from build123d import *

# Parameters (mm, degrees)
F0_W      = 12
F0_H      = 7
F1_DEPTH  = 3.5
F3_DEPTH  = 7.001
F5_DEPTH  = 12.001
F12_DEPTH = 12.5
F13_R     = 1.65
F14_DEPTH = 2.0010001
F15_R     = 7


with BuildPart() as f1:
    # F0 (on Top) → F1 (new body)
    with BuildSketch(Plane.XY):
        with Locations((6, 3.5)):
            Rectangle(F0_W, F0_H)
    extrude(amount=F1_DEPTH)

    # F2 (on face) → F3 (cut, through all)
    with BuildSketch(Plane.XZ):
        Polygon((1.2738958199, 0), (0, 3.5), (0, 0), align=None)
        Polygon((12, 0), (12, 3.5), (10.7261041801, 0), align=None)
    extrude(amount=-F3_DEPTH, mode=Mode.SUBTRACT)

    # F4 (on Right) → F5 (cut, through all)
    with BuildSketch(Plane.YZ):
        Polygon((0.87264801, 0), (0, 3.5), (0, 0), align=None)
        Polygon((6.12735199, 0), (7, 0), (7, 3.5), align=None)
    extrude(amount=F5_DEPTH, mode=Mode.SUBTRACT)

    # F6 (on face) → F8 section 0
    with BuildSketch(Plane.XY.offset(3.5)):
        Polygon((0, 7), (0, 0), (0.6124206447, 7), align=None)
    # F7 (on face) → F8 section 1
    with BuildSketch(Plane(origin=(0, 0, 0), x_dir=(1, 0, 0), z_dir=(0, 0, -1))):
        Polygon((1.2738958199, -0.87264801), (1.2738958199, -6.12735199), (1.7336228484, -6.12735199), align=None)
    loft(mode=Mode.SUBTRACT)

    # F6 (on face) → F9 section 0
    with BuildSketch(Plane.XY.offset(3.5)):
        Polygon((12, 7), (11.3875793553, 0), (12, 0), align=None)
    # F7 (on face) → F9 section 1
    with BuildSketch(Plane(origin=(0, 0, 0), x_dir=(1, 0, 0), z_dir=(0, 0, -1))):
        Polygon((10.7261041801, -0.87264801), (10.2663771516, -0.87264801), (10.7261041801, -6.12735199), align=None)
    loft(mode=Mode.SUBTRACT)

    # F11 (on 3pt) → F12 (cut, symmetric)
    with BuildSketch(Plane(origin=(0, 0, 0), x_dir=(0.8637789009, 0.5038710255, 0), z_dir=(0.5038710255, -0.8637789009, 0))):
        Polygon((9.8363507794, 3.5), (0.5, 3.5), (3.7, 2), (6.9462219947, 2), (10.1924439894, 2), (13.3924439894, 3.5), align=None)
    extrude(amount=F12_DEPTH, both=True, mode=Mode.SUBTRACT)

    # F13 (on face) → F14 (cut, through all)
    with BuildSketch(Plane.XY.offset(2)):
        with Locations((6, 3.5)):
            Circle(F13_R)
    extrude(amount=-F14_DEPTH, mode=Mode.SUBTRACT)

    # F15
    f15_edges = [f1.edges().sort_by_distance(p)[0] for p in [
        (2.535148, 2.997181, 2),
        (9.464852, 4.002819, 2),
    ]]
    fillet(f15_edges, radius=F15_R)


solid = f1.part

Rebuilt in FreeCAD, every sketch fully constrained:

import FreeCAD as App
import Part
import Sketcher

V = App.Vector
Q = App.Units.Quantity


def edges_at(feature, points):
    """Names of the edges that pass closest to the given points."""
    edges = feature.Shape.Edges
    near = lambda p: min(range(len(edges)), key=lambda i: edges[i].distToShape(Part.Vertex(*p))[0])
    return sorted({f"Edge{near(p) + 1}" for p in points})


def add_polygon(sketch, points):
    """Adds a closed chain of lines whose ends are joined by coincident constraints."""
    first, n = sketch.GeometryCount, len(points)
    for a, b in zip(points, points[1:] + points[:1]):
        sketch.addGeometry(Part.LineSegment(App.Vector(*a, 0), App.Vector(*b, 0)), False)
    for i in range(n):
        sketch.addConstraint(Sketcher.Constraint("Coincident", first + i, 2, first + (i + 1) % n, 1))

doc = App.newDocument("Part")
body = doc.addObject("PartDesign::Body", "Body")

# Sketch on XY plane
sketch1 = body.newObject("Sketcher::SketchObject", "Sketch")
sketch1.AttachmentSupport = (doc.getObject("XY_Plane"), [""])
sketch1.MapMode = "FlatFace"
add_polygon(sketch1, [(0, 7), (0, 0), (12, 0), (12, 7)])  # lines 0-3
sketch1.addConstraint(Sketcher.Constraint("Vertical", 0))
sketch1.addConstraint(Sketcher.Constraint("Horizontal", 1))
sketch1.addConstraint(Sketcher.Constraint("Vertical", 2))
sketch1.addConstraint(Sketcher.Constraint("Horizontal", 3))
sketch1.addConstraint(Sketcher.Constraint("Coincident", 0, 2, -1, 1))
sketch1.addConstraint(Sketcher.Constraint("DistanceX", 1, 1, 1, 2, 12.0))
sketch1.addConstraint(Sketcher.Constraint("DistanceY", 0, 2, 0, 1, 7.0))
pad1 = body.newObject("PartDesign::Pad", "Pad")
pad1.Profile = sketch1
pad1.Length = 3.5

# Sketch on XZ plane
sketch2 = body.newObject("Sketcher::SketchObject", "Sketch001")
sketch2.AttachmentSupport = (doc.getObject("XZ_Plane"), [""])
sketch2.MapMode = "FlatFace"
add_polygon(sketch2, [(1.3, 0), (0, 3.5), (0, 0)])  # lines 0-2
add_polygon(sketch2, [(12, 0), (12, 3.5), (10.7, 0)])  # lines 3-5
sketch2.addConstraint(Sketcher.Constraint("Vertical", 1))
sketch2.addConstraint(Sketcher.Constraint("Horizontal", 2))
sketch2.addConstraint(Sketcher.Constraint("Vertical", 3))
sketch2.addConstraint(Sketcher.Constraint("Horizontal", 5))
sketch2.addConstraint(Sketcher.Constraint("Coincident", 1, 2, -1, 1))
sketch2.addConstraint(Sketcher.Constraint("PointOnObject", 4, 2, -1))
sketch2.addConstraint(Sketcher.Constraint("Horizontal", 0, 2, 3, 2))
sketch2.addConstraint(Sketcher.Constraint("Equal", 2, 5))
sketch2.addConstraint(Sketcher.Constraint("Angle", 0, Q("110 deg")))
sketch2.addConstraint(Sketcher.Constraint("DistanceY", 1, 2, 1, 1, 3.5))
sketch2.addConstraint(Sketcher.Constraint("DistanceX", -1, 1, 3, 2, 12.0))
pocket1 = body.newObject("PartDesign::Pocket", "Pocket")
pocket1.Profile = sketch2
pocket1.Type = "ThroughAll"

# Sketch on YZ plane
sketch3 = body.newObject("Sketcher::SketchObject", "Sketch002")
sketch3.AttachmentSupport = (doc.getObject("YZ_Plane"), [""])
sketch3.MapMode = "FlatFace"
add_polygon(sketch3, [(0.9, 0), (0, 3.5), (0, 0)])  # lines 0-2
add_polygon(sketch3, [(6.1, 0), (7, 0), (7, 3.5)])  # lines 3-5
sketch3.addConstraint(Sketcher.Constraint("Vertical", 1))
sketch3.addConstraint(Sketcher.Constraint("Horizontal", 2))
sketch3.addConstraint(Sketcher.Constraint("Horizontal", 3))
sketch3.addConstraint(Sketcher.Constraint("Vertical", 4))
sketch3.addConstraint(Sketcher.Constraint("Coincident", 1, 2, -1, 1))
sketch3.addConstraint(Sketcher.Constraint("PointOnObject", 3, 2, -1))
sketch3.addConstraint(Sketcher.Constraint("Horizontal", 0, 2, 4, 2))
sketch3.addConstraint(Sketcher.Constraint("Equal", 2, 3))
sketch3.addConstraint(Sketcher.Constraint("Angle", 0, Q("104 deg")))
sketch3.addConstraint(Sketcher.Constraint("DistanceY", 1, 2, 1, 1, 3.5))
sketch3.addConstraint(Sketcher.Constraint("DistanceX", -1, 1, 3, 2, 7.0))
pocket2 = body.newObject("PartDesign::Pocket", "Pocket001")
pocket2.Profile = sketch3
pocket2.Type = "ThroughAll"
pocket2.Reversed = True

# Sketch on XY plane
sketch4 = body.newObject("Sketcher::SketchObject", "Sketch003")
sketch4.AttachmentSupport = (doc.getObject("XY_Plane"), [""])
sketch4.MapMode = "FlatFace"
sketch4.AttachmentOffset = App.Placement(V(0, 0, 3.5), App.Rotation())
add_polygon(sketch4, [(0, 7), (0, 0), (0.6, 7)])  # lines 0-2
sketch4.addConstraint(Sketcher.Constraint("Vertical", 0))
sketch4.addConstraint(Sketcher.Constraint("Horizontal", 2))
sketch4.addConstraint(Sketcher.Constraint("Coincident", 0, 2, -1, 1))
sketch4.addConstraint(Sketcher.Constraint("DistanceY", 0, 2, 0, 1, 7.0))
sketch4.addConstraint(Sketcher.Constraint("Angle", 1, Q("85 deg")))

# Sketch on XY plane
sketch5 = body.newObject("Sketcher::SketchObject", "Sketch004")
sketch5.AttachmentSupport = (doc.getObject("XY_Plane"), [""])
sketch5.MapMode = "FlatFace"
add_polygon(sketch5, [(1.27, 0.87), (1.27, 6.13), (1.73, 6.13)])  # lines 0-2
sketch5.addConstraint(Sketcher.Constraint("Vertical", 0))
sketch5.addConstraint(Sketcher.Constraint("Horizontal", 1))
sketch5.addConstraint(Sketcher.Constraint("Angle", 2, Q("-95 deg")))
sketch5.addConstraint(Sketcher.Constraint("DistanceX", 1, 1, 1, 2, 0.459727))
sketch5.addConstraint(Sketcher.Constraint("DistanceY", -1, 1, 0, 2, 6.127352))
sketch5.addConstraint(Sketcher.Constraint("DistanceX", -1, 1, 0, 2, 1.273896))

subtractiveloft = body.newObject("PartDesign::SubtractiveLoft", "SubtractiveLoft")
subtractiveloft.Profile = sketch4
subtractiveloft.Sections = [sketch5]

# Sketch on XY plane
sketch6 = body.newObject("Sketcher::SketchObject", "Sketch005")
sketch6.AttachmentSupport = (doc.getObject("XY_Plane"), [""])
sketch6.MapMode = "FlatFace"
sketch6.AttachmentOffset = App.Placement(V(0, 0, 3.5), App.Rotation())
add_polygon(sketch6, [(12, 7), (11.4, 0), (12, 0)])  # lines 0-2
sketch6.addConstraint(Sketcher.Constraint("Horizontal", 1))
sketch6.addConstraint(Sketcher.Constraint("Vertical", 2))
sketch6.addConstraint(Sketcher.Constraint("PointOnObject", 0, 2, -1))
sketch6.addConstraint(Sketcher.Constraint("DistanceY", 2, 1, 2, 2, 7.0))
sketch6.addConstraint(Sketcher.Constraint("Angle", 0, Q("-95 deg")))
sketch6.addConstraint(Sketcher.Constraint("DistanceX", -1, 1, 1, 2, 12.0))

# Sketch on XY plane
sketch7 = body.newObject("Sketcher::SketchObject", "Sketch006")
sketch7.AttachmentSupport = (doc.getObject("XY_Plane"), [""])
sketch7.MapMode = "FlatFace"
add_polygon(sketch7, [(10.73, 0.87), (10.27, 0.87), (10.73, 6.13)])  # lines 0-2
sketch7.addConstraint(Sketcher.Constraint("Horizontal", 0))
sketch7.addConstraint(Sketcher.Constraint("Vertical", 2))
sketch7.addConstraint(Sketcher.Constraint("Angle", 1, Q("85 deg")))
sketch7.addConstraint(Sketcher.Constraint("DistanceX", 0, 2, 0, 1, 0.459727))
sketch7.addConstraint(Sketcher.Constraint("DistanceY", -1, 1, 0, 2, 0.872648))
sketch7.addConstraint(Sketcher.Constraint("DistanceX", -1, 1, 0, 2, 10.266377))

subtractiveloft2 = body.newObject("PartDesign::SubtractiveLoft", "SubtractiveLoft001")
subtractiveloft2.Profile = sketch6
subtractiveloft2.Sections = [sketch7]

# Sketch on an angled plane
sketch8 = body.newObject("Sketcher::SketchObject", "Sketch007")
sketch8.Placement = App.Placement(V(0, 0, 0), App.Rotation(V(0.863778901, 0.503871026, 0), V(0, 0, 1.000000001), V(0.503871026, -0.863778901, 0), "ZXY"))
add_polygon(sketch8, [(0.5, 3.5), (3.7, 2), (10.2, 2), (13.4, 3.5)])  # lines 0-3
sketch8.addConstraint(Sketcher.Constraint("Horizontal", 1))
sketch8.addConstraint(Sketcher.Constraint("Horizontal", 3))
sketch8.addConstraint(Sketcher.Constraint("Equal", 0, 2))
sketch8.addConstraint(Sketcher.Constraint("DistanceY", -1, 1, 0, 2, 2.0))
sketch8.addConstraint(Sketcher.Constraint("DistanceX", -1, 1, 0, 2, 3.7))
sketch8.addConstraint(Sketcher.Constraint("DistanceY", -1, 1, 2, 2, 3.5))
sketch8.addConstraint(Sketcher.Constraint("DistanceX", -1, 1, 3, 2, 0.5))
sketch8.addConstraint(Sketcher.Constraint("DistanceX", 1, 1, 1, 2, 6.492444))
pocket3 = body.newObject("PartDesign::Pocket", "Pocket002")
pocket3.Profile = sketch8
pocket3.Length = 25
pocket3.Midplane = True

# Sketch on XY plane
sketch9 = body.newObject("Sketcher::SketchObject", "Sketch008")
sketch9.AttachmentSupport = (doc.getObject("XY_Plane"), [""])
sketch9.MapMode = "FlatFace"
sketch9.AttachmentOffset = App.Placement(V(0, 0, 2), App.Rotation())
sketch9.addGeometry(Part.Circle(V(6, 3.5, 0), V(0, 0, 1), 1.6), False)
sketch9.addConstraint(Sketcher.Constraint("Diameter", 0, 3.3))
sketch9.addConstraint(Sketcher.Constraint("DistanceX", -1, 1, 0, 3, 6.0))
sketch9.addConstraint(Sketcher.Constraint("DistanceY", -1, 1, 0, 3, 3.5))
pocket4 = body.newObject("PartDesign::Pocket", "Pocket003")
pocket4.Profile = sketch9
pocket4.Type = "ThroughAll"
doc.recompute()

fillet = body.newObject("PartDesign::Fillet", "Fillet")
fillet.Base = (pocket4, edges_at(pocket4, [(2.535, 2.997, 2), (9.465, 4.003, 2)]))
fillet.Radius = 7

doc.recompute()
